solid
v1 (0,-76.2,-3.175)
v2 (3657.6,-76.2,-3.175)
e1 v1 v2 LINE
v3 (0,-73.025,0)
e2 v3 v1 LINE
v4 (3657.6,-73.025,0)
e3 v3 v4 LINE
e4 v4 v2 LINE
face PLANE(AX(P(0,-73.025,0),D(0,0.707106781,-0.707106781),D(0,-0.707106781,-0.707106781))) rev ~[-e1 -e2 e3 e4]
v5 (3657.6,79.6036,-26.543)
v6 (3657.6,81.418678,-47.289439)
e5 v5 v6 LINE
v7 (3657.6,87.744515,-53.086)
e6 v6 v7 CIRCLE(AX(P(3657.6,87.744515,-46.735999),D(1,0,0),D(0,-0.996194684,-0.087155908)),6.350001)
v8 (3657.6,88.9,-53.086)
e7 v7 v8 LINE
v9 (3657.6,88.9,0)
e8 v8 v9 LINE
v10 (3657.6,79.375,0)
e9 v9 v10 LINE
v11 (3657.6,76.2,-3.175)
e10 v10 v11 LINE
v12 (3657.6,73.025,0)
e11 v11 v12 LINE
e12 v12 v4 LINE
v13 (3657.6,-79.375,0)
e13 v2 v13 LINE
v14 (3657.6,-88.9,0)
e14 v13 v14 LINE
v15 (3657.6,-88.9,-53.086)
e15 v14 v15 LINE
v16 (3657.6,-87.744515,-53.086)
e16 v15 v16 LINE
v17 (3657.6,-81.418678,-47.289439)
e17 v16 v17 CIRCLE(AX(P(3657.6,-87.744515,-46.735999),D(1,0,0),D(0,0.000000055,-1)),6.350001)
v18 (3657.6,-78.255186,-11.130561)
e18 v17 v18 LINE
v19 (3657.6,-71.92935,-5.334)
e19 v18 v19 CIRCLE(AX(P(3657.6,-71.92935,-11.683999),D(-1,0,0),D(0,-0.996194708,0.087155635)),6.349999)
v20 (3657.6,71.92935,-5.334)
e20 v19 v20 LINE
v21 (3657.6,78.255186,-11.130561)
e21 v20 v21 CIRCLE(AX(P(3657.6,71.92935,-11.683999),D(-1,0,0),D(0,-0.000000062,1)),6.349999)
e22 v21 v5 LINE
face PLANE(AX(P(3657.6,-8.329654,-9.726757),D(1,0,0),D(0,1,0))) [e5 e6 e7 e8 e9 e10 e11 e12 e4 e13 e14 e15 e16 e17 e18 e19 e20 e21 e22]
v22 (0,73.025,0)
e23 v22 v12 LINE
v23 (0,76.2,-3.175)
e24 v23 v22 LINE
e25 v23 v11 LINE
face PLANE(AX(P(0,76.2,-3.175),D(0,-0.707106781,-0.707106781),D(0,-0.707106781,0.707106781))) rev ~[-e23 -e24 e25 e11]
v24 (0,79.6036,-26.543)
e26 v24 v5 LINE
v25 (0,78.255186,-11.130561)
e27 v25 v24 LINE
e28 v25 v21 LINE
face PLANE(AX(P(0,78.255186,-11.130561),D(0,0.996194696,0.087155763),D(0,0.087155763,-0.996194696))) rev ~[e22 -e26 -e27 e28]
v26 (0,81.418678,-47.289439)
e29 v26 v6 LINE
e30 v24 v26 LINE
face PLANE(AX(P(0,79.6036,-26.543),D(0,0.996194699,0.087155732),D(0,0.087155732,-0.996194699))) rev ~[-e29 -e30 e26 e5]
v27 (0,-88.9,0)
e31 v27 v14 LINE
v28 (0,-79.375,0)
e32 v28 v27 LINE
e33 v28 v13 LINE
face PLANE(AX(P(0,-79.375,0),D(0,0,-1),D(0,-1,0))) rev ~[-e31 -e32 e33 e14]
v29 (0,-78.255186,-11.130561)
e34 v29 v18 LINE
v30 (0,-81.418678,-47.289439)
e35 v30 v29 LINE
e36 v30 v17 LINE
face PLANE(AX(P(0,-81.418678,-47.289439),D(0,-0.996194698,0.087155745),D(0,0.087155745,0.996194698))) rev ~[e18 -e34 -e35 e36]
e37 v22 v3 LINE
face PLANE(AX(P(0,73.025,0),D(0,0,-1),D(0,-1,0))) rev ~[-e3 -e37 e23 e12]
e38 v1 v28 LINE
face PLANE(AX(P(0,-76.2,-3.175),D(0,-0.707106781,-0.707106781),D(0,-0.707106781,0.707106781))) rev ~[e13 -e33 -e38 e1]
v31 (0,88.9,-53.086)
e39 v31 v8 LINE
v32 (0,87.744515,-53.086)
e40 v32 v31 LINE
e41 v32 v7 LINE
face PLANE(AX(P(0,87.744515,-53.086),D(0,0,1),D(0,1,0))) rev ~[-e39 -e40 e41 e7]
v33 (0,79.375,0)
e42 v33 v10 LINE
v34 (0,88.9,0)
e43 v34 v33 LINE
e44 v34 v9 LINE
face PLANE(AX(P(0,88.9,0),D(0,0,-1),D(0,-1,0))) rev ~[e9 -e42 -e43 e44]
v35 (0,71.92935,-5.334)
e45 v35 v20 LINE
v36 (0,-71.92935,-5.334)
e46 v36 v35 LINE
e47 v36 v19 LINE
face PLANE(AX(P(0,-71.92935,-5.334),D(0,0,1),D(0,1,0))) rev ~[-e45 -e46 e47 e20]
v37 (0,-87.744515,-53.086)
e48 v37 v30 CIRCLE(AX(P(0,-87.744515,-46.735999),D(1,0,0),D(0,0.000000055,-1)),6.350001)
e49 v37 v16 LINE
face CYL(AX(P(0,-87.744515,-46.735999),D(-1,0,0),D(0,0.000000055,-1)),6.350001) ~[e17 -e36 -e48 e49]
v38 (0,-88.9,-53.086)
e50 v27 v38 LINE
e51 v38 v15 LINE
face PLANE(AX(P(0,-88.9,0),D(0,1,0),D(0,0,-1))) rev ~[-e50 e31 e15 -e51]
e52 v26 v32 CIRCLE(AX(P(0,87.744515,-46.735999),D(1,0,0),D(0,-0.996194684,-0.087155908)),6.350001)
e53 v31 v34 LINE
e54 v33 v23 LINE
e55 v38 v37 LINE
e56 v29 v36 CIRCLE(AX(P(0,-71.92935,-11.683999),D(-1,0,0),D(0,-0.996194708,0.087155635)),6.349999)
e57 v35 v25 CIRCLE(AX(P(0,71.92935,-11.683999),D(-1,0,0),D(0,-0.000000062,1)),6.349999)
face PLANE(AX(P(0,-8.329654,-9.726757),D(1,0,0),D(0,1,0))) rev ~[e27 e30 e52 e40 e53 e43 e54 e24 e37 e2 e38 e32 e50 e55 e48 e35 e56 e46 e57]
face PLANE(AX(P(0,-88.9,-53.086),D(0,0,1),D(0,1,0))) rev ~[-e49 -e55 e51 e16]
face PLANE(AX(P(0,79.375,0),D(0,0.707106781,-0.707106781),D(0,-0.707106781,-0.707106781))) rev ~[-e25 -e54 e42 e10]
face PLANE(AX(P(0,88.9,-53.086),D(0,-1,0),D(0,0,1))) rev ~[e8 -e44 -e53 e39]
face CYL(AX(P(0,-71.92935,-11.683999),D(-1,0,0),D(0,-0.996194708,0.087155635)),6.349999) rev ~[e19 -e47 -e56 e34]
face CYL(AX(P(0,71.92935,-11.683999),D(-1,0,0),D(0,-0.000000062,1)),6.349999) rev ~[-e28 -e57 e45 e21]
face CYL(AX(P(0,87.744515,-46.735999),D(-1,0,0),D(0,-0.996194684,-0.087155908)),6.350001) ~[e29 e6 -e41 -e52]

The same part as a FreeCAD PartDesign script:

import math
import FreeCAD as App
import Part
import Sketcher
from FreeCAD import Vector
Q = App.Units.Quantity

doc = App.newDocument("Part")
body = doc.addObject("PartDesign::Body", "Body")

sketch1 = body.newObject("Sketcher::SketchObject", "Sketch")
sketch1.AttachmentSupport = (doc.getObject("YZ_Plane"), [""])
sketch1.MapMode = "FlatFace"
sketch1.addGeometry(Part.LineSegment(Vector(88.9, 0, 0), Vector(79.375, 0, 0)), False)
sketch1.addGeometry(Part.LineSegment(Vector(79.375, 0, 0), Vector(76.2, -3.175, 0)), False)
sketch1.addGeometry(Part.LineSegment(Vector(76.2, -3.175, 0), Vector(73.025, 0, 0)), False)
sketch1.addGeometry(Part.LineSegment(Vector(73.025, 0, 0), Vector(-73.025, 0, 0)), False)
sketch1.addGeometry(Part.LineSegment(Vector(-73.025, 0, 0), Vector(-76.2, -3.175, 0)), False)
sketch1.addGeometry(Part.LineSegment(Vector(-76.2, -3.175, 0), Vector(-79.375, 0, 0)), False)
sketch1.addGeometry(Part.LineSegment(Vector(-79.375, 0, 0), Vector(-88.9, 0, 0)), False)
sketch1.addGeometry(Part.LineSegment(Vector(-88.9, 0, 0), Vector(-88.9, -53.086, 0)), False)
sketch1.addGeometry(Part.LineSegment(Vector(-88.9, -53.086, 0), Vector(-87.744515, -53.086, 0)), False)
sketch1.addGeometry(Part.ArcOfCircle(Part.Circle(Vector(-87.744515, -46.735999, 0), Vector(0, 0, 1), 6.350001), math.radians(-89.999997), math.radians(-5.000009)), False)
sketch1.addGeometry(Part.LineSegment(Vector(-81.418678, -47.289439, 0), Vector(-78.255186, -11.130561, 0)), False)
sketch1.addGeometry(Part.ArcOfCircle(Part.Circle(Vector(-71.92935, -11.683999, 0), Vector(0, 0, 1), 6.349999), math.radians(89.999996), math.radians(175.000006)), False)
sketch1.addGeometry(Part.LineSegment(Vector(-71.92935, -5.334, 0), Vector(71.92935, -5.334, 0)), False)
sketch1.addGeometry(Part.ArcOfCircle(Part.Circle(Vector(71.92935, -11.683999, 0), Vector(0, 0, 1), 6.349999), math.radians(4.999994), math.radians(90.000004)), False)
sketch1.addGeometry(Part.LineSegment(Vector(78.255186, -11.130561, 0), Vector(79.6036, -26.543, 0)), False)
sketch1.addGeometry(Part.LineSegment(Vector(79.6036, -26.543, 0), Vector(81.418678, -47.289439, 0)), False)
sketch1.addGeometry(Part.ArcOfCircle(Part.Circle(Vector(87.744515, -46.735999, 0), Vector(0, 0, 1), 6.350001), math.radians(-174.999991), math.radians(-90.000003)), False)
sketch1.addGeometry(Part.LineSegment(Vector(87.744515, -53.086, 0), Vector(88.9, -53.086, 0)), False)
sketch1.addGeometry(Part.LineSegment(Vector(88.9, -53.086, 0), Vector(88.9, 0, 0)), False)
sketch1.addConstraint(Sketcher.Constraint("Coincident", 0, 2, 1, 1))
sketch1.addConstraint(Sketcher.Constraint("Coincident", 1, 2, 2, 1))
sketch1.addConstraint(Sketcher.Constraint("Coincident", 2, 2, 3, 1))
sketch1.addConstraint(Sketcher.Constraint("Coincident", 3, 2, 4, 1))
sketch1.addConstraint(Sketcher.Constraint("Coincident", 4, 2, 5, 1))
sketch1.addConstraint(Sketcher.Constraint("Coincident", 5, 2, 6, 1))
sketch1.addConstraint(Sketcher.Constraint("Coincident", 6, 2, 7, 1))
sketch1.addConstraint(Sketcher.Constraint("Coincident", 7, 2, 8, 1))
sketch1.addConstraint(Sketcher.Constraint("Tangent", 8, 2, 9, 1))
sketch1.addConstraint(Sketcher.Constraint("Tangent", 9, 2, 10, 1))
sketch1.addConstraint(Sketcher.Constraint("Tangent", 10, 2, 11, 2))
sketch1.addConstraint(Sketcher.Constraint("Tangent", 11, 1, 12, 1))
sketch1.addConstraint(Sketcher.Constraint("Tangent", 12, 2, 13, 2))
sketch1.addConstraint(Sketcher.Constraint("Tangent", 13, 1, 14, 1))
sketch1.addConstraint(Sketcher.Constraint("Coincident", 14, 2, 15, 1))
sketch1.addConstraint(Sketcher.Constraint("Tangent", 15, 2, 16, 1))
sketch1.addConstraint(Sketcher.Constraint("Tangent", 16, 2, 17, 1))
sketch1.addConstraint(Sketcher.Constraint("Coincident", 17, 2, 18, 1))
sketch1.addConstraint(Sketcher.Constraint("Coincident", 18, 2, 0, 1))
sketch1.addConstraint(Sketcher.Constraint("Horizontal", 0))
sketch1.addConstraint(Sketcher.Constraint("Horizontal", 3))
sketch1.addConstraint(Sketcher.Constraint("Horizontal", 6))
sketch1.addConstraint(Sketcher.Constraint("Vertical", 7))
sketch1.addConstraint(Sketcher.Constraint("Horizontal", 8))
sketch1.addConstraint(Sketcher.Constraint("Horizontal", 12))
sketch1.addConstraint(Sketcher.Constraint("Horizontal", 17))
sketch1.addConstraint(Sketcher.Constraint("Vertical", 18))
sketch1.addConstraint(Sketcher.Constraint("Equal", 9, 11))
sketch1.addConstraint(Sketcher.Constraint("Equal", 11, 13))
sketch1.addConstraint(Sketcher.Constraint("Equal", 13, 16))
sketch1.addConstraint(Sketcher.Constraint("Symmetric", 2, 2, 3, 2, -1, 1))
sketch1.addConstraint(Sketcher.Constraint("Symmetric", 0, 2, 5, 2, -1, 1))
sketch1.addConstraint(Sketcher.Constraint("Symmetric", 9, 3, 16, 3, -2))
sketch1.addConstraint(Sketcher.Constraint("Symmetric", 1, 2, 4, 2, -2))
sketch1.addConstraint(Sketcher.Constraint("Symmetric", 10, 2, 13, 1, -2))
sketch1.addConstraint(Sketcher.Constraint("Symmetric", 6, 2, 18, 2, -2))
sketch1.addConstraint(Sketcher.Constraint("Perpendicular", 1, 2))
sketch1.addConstraint(Sketcher.Constraint("Perpendicular", 2, 4))
sketch1.addConstraint(Sketcher.Constraint("Radius", 9, Q("0.25 in")))
sketch1.addConstraint(Sketcher.Constraint("DistanceX", -1, 1, 1, 2, Q("3 in")))
sketch1.addConstraint(Sketcher.Constraint("Angle", 10, Q("85 deg")))
sketch1.addConstraint(Sketcher.Constraint("DistanceX", 3, 2, 3, 1, Q("5.75 in")))
sketch1.addConstraint(Sketcher.Constraint("DistanceY", 7, 2, 7, 1, Q("2.09 in")))
sketch1.addConstraint(Sketcher.Constraint("DistanceX", 6, 2, -1, 1, Q("3.5 in")))
sketch1.addConstraint(Sketcher.Constraint("DistanceY", 11, 3, -1, 1, Q("0.46 in")))
sketch1.addConstraint(Sketcher.Constraint("DistanceY", 14, 2, 1, 2, Q("0.92 in")))
sketch1.addConstraint(Sketcher.Constraint("DistanceX", -1, 1, 14, 2, Q("3.134 in")))
pad1 = body.newObject("PartDesign::Pad", "Pad")
pad1.Profile = sketch1
pad1.Length = Q("144 in")

doc.recompute()
